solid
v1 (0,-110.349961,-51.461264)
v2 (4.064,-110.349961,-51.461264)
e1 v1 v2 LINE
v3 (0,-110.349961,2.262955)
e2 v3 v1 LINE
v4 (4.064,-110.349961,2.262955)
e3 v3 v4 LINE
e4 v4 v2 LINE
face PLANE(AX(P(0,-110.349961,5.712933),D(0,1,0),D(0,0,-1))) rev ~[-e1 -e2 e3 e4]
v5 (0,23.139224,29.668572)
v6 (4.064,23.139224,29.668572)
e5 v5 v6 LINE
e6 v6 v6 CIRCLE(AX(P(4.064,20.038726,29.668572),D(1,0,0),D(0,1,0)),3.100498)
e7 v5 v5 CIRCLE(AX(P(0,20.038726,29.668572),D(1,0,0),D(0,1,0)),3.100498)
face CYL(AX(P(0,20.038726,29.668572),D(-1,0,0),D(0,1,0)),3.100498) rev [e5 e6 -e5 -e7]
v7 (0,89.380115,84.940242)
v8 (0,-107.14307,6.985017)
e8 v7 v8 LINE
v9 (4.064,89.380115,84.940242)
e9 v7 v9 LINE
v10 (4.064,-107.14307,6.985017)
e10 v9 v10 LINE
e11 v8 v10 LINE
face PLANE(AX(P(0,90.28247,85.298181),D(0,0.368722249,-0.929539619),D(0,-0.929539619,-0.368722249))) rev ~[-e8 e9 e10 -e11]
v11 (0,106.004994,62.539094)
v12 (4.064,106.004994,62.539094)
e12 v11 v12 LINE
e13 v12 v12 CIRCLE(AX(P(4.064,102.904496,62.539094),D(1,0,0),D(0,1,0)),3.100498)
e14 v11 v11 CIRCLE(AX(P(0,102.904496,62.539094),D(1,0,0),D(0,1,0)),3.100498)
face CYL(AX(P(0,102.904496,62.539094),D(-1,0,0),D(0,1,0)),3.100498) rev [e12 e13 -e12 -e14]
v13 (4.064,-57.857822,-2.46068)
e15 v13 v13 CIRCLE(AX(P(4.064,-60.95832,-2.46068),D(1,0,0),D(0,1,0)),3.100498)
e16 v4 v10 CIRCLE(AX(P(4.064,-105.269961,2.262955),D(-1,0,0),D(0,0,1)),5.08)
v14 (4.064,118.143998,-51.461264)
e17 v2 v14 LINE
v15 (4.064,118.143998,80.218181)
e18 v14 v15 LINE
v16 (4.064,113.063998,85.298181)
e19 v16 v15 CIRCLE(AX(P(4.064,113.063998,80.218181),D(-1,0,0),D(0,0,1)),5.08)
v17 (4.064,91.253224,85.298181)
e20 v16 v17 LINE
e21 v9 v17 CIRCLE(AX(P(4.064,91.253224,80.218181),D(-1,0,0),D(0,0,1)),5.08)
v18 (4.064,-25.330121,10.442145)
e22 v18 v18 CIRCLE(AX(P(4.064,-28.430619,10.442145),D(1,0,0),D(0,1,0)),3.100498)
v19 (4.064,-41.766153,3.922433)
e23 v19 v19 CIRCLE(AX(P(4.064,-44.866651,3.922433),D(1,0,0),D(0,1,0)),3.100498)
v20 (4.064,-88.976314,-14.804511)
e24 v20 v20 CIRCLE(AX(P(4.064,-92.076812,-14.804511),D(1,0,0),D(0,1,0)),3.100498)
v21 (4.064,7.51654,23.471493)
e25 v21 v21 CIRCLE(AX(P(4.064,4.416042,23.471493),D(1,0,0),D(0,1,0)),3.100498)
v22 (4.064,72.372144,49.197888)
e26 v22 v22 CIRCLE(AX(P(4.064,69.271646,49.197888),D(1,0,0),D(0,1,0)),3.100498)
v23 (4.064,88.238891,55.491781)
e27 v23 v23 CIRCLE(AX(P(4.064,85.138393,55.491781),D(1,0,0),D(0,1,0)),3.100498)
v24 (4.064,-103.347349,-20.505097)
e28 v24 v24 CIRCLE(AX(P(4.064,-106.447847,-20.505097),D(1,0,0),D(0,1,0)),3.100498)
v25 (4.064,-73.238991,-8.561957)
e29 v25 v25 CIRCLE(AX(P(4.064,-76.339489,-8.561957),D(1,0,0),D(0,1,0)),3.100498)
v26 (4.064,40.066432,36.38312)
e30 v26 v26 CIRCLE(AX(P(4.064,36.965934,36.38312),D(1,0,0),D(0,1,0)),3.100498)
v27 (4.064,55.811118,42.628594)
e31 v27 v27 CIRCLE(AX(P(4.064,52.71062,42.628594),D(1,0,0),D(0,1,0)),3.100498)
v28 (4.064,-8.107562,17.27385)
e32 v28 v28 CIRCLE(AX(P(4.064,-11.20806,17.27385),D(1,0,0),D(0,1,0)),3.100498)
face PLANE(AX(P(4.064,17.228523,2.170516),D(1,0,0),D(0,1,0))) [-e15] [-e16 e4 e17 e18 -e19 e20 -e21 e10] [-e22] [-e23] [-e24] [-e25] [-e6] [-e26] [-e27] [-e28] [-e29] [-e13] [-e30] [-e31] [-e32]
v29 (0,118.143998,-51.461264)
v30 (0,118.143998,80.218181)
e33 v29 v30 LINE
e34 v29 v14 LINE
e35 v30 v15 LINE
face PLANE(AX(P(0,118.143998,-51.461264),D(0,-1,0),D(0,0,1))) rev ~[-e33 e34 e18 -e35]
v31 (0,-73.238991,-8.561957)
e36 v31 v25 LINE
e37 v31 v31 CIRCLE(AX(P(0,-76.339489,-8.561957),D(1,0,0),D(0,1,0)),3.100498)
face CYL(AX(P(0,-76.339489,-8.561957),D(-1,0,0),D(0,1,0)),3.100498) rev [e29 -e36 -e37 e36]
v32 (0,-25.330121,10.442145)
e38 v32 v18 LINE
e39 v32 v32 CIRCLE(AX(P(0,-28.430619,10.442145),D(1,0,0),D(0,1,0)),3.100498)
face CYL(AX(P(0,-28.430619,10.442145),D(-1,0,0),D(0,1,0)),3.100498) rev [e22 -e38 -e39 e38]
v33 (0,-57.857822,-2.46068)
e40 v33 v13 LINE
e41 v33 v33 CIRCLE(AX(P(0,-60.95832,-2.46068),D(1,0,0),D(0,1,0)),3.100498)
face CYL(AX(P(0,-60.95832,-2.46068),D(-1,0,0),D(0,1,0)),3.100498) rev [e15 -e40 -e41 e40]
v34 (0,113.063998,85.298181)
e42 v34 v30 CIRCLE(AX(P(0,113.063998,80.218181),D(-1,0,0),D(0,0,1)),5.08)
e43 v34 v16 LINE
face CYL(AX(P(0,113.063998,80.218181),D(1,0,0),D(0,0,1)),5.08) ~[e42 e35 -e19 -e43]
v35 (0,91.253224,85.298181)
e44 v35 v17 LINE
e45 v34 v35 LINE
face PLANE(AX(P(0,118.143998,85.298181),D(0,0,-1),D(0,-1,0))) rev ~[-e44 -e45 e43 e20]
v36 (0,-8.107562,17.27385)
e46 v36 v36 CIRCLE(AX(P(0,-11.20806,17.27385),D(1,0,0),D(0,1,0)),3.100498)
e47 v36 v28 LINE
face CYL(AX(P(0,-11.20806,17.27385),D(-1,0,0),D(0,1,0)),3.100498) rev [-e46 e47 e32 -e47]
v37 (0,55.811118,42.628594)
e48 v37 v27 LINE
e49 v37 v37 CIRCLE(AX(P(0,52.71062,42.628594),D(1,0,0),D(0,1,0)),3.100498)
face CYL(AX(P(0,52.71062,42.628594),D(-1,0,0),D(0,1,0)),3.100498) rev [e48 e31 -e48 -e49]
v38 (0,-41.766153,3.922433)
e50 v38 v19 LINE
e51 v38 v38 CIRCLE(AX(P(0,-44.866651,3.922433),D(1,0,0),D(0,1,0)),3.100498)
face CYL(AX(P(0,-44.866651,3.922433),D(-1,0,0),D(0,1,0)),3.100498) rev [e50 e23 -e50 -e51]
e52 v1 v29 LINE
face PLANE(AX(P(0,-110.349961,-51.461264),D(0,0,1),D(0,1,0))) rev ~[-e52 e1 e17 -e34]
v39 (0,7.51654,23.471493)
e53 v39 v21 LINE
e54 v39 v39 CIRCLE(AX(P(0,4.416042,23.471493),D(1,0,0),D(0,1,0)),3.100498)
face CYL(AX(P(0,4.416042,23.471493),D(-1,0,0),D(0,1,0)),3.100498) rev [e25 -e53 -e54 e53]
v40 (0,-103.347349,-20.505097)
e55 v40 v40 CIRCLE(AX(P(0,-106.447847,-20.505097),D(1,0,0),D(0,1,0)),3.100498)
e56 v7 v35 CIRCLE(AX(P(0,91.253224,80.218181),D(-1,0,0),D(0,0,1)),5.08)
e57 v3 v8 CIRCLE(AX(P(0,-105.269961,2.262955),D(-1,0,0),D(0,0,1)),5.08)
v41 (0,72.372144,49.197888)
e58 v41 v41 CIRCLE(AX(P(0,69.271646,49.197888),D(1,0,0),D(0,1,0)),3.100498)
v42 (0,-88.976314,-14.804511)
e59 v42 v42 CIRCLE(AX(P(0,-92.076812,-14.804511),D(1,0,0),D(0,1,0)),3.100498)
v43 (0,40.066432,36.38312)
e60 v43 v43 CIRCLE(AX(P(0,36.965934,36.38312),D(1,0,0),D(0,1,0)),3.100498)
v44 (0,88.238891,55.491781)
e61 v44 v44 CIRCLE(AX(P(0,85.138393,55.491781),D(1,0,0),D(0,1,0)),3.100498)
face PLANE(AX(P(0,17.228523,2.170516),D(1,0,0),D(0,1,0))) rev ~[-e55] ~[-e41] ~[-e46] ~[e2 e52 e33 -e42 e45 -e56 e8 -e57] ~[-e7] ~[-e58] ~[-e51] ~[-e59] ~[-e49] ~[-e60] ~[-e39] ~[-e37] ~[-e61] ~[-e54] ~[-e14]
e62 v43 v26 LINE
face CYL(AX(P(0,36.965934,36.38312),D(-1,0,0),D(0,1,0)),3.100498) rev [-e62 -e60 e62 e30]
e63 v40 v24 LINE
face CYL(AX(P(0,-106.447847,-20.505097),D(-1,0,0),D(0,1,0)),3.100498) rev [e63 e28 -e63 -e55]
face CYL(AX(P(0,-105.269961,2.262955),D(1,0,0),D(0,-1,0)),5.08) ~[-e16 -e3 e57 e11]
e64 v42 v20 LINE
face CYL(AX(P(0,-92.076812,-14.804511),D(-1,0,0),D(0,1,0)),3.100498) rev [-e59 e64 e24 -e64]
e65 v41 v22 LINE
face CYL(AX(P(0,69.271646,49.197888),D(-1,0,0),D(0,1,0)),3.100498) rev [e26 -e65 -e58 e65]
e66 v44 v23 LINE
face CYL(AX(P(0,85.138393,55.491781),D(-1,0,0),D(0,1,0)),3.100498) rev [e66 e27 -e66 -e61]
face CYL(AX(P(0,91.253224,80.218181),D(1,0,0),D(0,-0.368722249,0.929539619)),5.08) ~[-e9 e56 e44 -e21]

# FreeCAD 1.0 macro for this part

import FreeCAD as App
import Part
import Sketcher

V = App.Vector
Q = App.Units.Quantity


def edges_at(feature, points):
    """Names of the edges that pass closest to the given points."""
    edges = feature.Shape.Edges
    near = lambda p: min(range(len(edges)), key=lambda i: edges[i].distToShape(Part.Vertex(*p))[0])
    return sorted({f"Edge{near(p) + 1}" for p in points})

doc = App.newDocument("Part")
params = doc.addObject("Spreadsheet::Sheet", "Params")
for row, (alias, value) in enumerate([
    ("pad1_length", "0.16 in"),
    ("fillet_radius", "0.2 in"),
], start=1):
    params.set(f"A{row}", alias)
    params.set(f"B{row}", "=" + value)
    params.setAlias(f"B{row}", alias)

body = doc.addObject("PartDesign::Body", "Body")

# Sketch on YZ plane
sketch1 = doc.addObject("Sketcher::SketchObject", "Sketch")
body.addObject(sketch1)
sketch1.AttachmentSupport = (doc.YZ_Plane, [""])
sketch1.MapMode = "FlatFace"
sketch1.addGeometry(Part.LineSegment(V(-110.349961, 5.712933, 0), V(-110.349961, -51.461264, 0)), False)
sketch1.addGeometry(Part.LineSegment(V(-110.349961, -51.461264, 0), V(118.143998, -51.461264, 0)), False)
sketch1.addGeometry(Part.LineSegment(V(118.143998, -51.461264, 0), V(118.143998, 85.298181, 0)), False)
sketch1.addGeometry(Part.LineSegment(V(118.143998, 85.298181, 0), V(90.28247, 85.298181, 0)), False)
sketch1.addGeometry(Part.LineSegment(V(90.28247, 85.298181, 0), V(-110.349961, 5.712933, 0)), False)
sketch1.addGeometry(Part.Circle(V(-106.447847, -20.505097, 0), V(0, 0, 1), 3.100498), False)
sketch1.addGeometry(Part.Circle(V(-92.076812, -14.804511, 0), V(0, 0, 1), 3.100498), False)
sketch1.addGeometry(Part.Circle(V(-76.339489, -8.561957, 0), V(0, 0, 1), 3.100498), False)
sketch1.addGeometry(Part.Circle(V(-60.95832, -2.46068, 0), V(0, 0, 1), 3.100498), False)
sketch1.addGeometry(Part.Circle(V(-44.866651, 3.922433, 0), V(0, 0, 1), 3.100498), False)
sketch1.addGeometry(Part.Circle(V(-28.430619, 10.442145, 0), V(0, 0, 1), 3.100498), False)
sketch1.addGeometry(Part.Circle(V(-11.20806, 17.27385, 0), V(0, 0, 1), 3.100498), False)
sketch1.addGeometry(Part.Circle(V(4.416042, 23.471493, 0), V(0, 0, 1), 3.100498), False)
sketch1.addGeometry(Part.Circle(V(20.038726, 29.668572, 0), V(0, 0, 1), 3.100498), False)
sketch1.addGeometry(Part.Circle(V(36.965934, 36.38312, 0), V(0, 0, 1), 3.100498), False)
sketch1.addGeometry(Part.Circle(V(52.71062, 42.628594, 0), V(0, 0, 1), 3.100498), False)
sketch1.addGeometry(Part.Circle(V(69.271646, 49.197888, 0), V(0, 0, 1), 3.100498), False)
sketch1.addGeometry(Part.Circle(V(85.138393, 55.491781, 0), V(0, 0, 1), 3.100498), False)
sketch1.addGeometry(Part.Circle(V(102.904496, 62.539094, 0), V(0, 0, 1), 3.100498), False)
sketch1.addConstraint(Sketcher.Constraint("Coincident", 0, 2, 1, 1))
sketch1.addConstraint(Sketcher.Constraint("Coincident", 1, 2, 2, 1))
sketch1.addConstraint(Sketcher.Constraint("Coincident", 2, 2, 3, 1))
sketch1.addConstraint(Sketcher.Constraint("Coincident", 3, 2, 4, 1))
sketch1.addConstraint(Sketcher.Constraint("Coincident", 4, 2, 0, 1))
sketch1.addConstraint(Sketcher.Constraint("Vertical", 0))
sketch1.addConstraint(Sketcher.Constraint("Horizontal", 1))
sketch1.addConstraint(Sketcher.Constraint("Vertical", 2))
sketch1.addConstraint(Sketcher.Constraint("Horizontal", 3))
sketch1.addConstraint(Sketcher.Constraint("Equal", 5, 6))
sketch1.addConstraint(Sketcher.Constraint("Equal", 6, 7))
sketch1.addConstraint(Sketcher.Constraint("Equal", 7, 8))
sketch1.addConstraint(Sketcher.Constraint("Equal", 8, 9))
sketch1.addConstraint(Sketcher.Constraint("Equal", 9, 10))
sketch1.addConstraint(Sketcher.Constraint("Equal", 10, 11))
sketch1.addConstraint(Sketcher.Constraint("Equal", 11, 12))
sketch1.addConstraint(Sketcher.Constraint("Equal", 12, 13))
sketch1.addConstraint(Sketcher.Constraint("Equal", 13, 14))
sketch1.addConstraint(Sketcher.Constraint("Equal", 14, 15))
sketch1.addConstraint(Sketcher.Constraint("Equal", 15, 16))
sketch1.addConstraint(Sketcher.Constraint("Equal", 16, 17))
sketch1.addConstraint(Sketcher.Constraint("Equal", 17, 18))
sketch1.addConstraint(Sketcher.Constraint("Diameter", 5, Q("6.200996 mm")))
sketch1.addConstraint(Sketcher.Constraint("DistanceX", 1, 1, 1, 2, Q("228.493959 mm")))
sketch1.addConstraint(Sketcher.Constraint("DistanceX", 8, 3, 10, 3, Q("32.527701 mm")))
sketch1.addConstraint(Sketcher.Constraint("DistanceY", 7, 3, 10, 3, Q("19.004102 mm")))
sketch1.addConstraint(Sketcher.Constraint("DistanceY", 12, 3, 15, 3, Q("19.157101 mm")))
sketch1.addConstraint(Sketcher.Constraint("DistanceY", 15, 3, 18, 3, Q("19.9105 mm")))
sketch1.addConstraint(Sketcher.Constraint("DistanceY", 17, 3, 2, 2, Q("29.8064 mm")))
sketch1.addConstraint(Sketcher.Constraint("DistanceX", 3, 2, 3, 1, Q("27.861528 mm")))
sketch1.addConstraint(Sketcher.Constraint("DistanceY", 0, 2, 0, 1, Q("57.174197 mm")))
sketch1.addConstraint(Sketcher.Constraint("DistanceY", 2, 1, 2, 2, Q("136.759445 mm")))
sketch1.addConstraint(Sketcher.Constraint("DistanceY", 6, 3, -1, 1, Q("14.804511 mm")))
sketch1.addConstraint(Sketcher.Constraint("DistanceX", 7, 3, -1, 1, Q("76.339489 mm")))
sketch1.addConstraint(Sketcher.Constraint("DistanceX", 8, 3, -1, 1, Q("60.95832 mm")))
sketch1.addConstraint(Sketcher.Constraint("DistanceY", 8, 3, -1, 1, Q("2.46068 mm")))
sketch1.addConstraint(Sketcher.Constraint("DistanceX", 9, 3, -1, 1, Q("44.866651 mm")))
sketch1.addConstraint(Sketcher.Constraint("DistanceX", 11, 3, -1, 1, Q("11.20806 mm")))
sketch1.addConstraint(Sketcher.Constraint("DistanceY", -1, 1, 11, 3, Q("17.27385 mm")))
sketch1.addConstraint(Sketcher.Constraint("DistanceY", -1, 1, 14, 3, Q("36.38312 mm")))
sketch1.addConstraint(Sketcher.Constraint("DistanceX", -1, 1, 15, 3, Q("52.71062 mm")))
sketch1.addConstraint(Sketcher.Constraint("DistanceY", -1, 1, 17, 3, Q("55.491781 mm")))
sketch1.addConstraint(Sketcher.Constraint("DistanceX", 0, 2, -1, 1, Q("110.349961 mm")))
sketch1.addConstraint(Sketcher.Constraint("DistanceY", 5, 3, 7, 3, Q("11.94314 mm")))
sketch1.addConstraint(Sketcher.Constraint("DistanceY", 7, 3, 9, 3, Q("12.48439 mm")))
sketch1.addConstraint(Sketcher.Constraint("DistanceX", 6, 3, 9, 3, Q("47.210161 mm")))
sketch1.addConstraint(Sketcher.Constraint("DistanceX", 10, 3, 12, 3, Q("32.846661 mm")))
sketch1.addConstraint(Sketcher.Constraint("DistanceY", 9, 3, 12, 3, Q("19.54906 mm")))
sketch1.addConstraint(Sketcher.Constraint("DistanceY", 12, 3, 13, 3, Q("6.197079 mm")))
sketch1.addConstraint(Sketcher.Constraint("DistanceY", 14, 3, 16, 3, Q("12.814768 mm")))
sketch1.addConstraint(Sketcher.Constraint("DistanceX", 13, 3, 16, 3, Q("49.23292 mm")))
sketch1.addConstraint(Sketcher.Constraint("DistanceX", 14, 3, 17, 3, Q("48.172459 mm")))
sketch1.addConstraint(Sketcher.Constraint("DistanceY", 13, 3, 17, 3, Q("25.823209 mm")))
sketch1.addConstraint(Sketcher.Constraint("DistanceX", 12, 3, 17, 3, Q("80.722351 mm")))
sketch1.addConstraint(Sketcher.Constraint("DistanceX", 16, 3, 18, 3, Q("33.63285 mm")))
sketch1.addConstraint(Sketcher.Constraint("DistanceX", 14, 3, 18, 3, Q("65.938562 mm")))
sketch1.addConstraint(Sketcher.Constraint("DistanceX", 5, 3, -1, 1, Q("106.447847 mm")))
pad1 = doc.addObject("PartDesign::Pad", "Pad")
body.addObject(pad1)
pad1.Profile = sketch1
pad1.setExpression("Length", "Params.pad1_length")
doc.recompute()

fillet = doc.addObject("PartDesign::Fillet", "Fillet")
body.addObject(fillet)
fillet.Base = (pad1, edges_at(pad1, [(2.032, -110.35, 5.713), (2.032, 118.144, 85.298), (2.032, 90.282, 85.298)]))
fillet.setExpression("Radius", "Params.fillet_radius")

doc.recompute()
